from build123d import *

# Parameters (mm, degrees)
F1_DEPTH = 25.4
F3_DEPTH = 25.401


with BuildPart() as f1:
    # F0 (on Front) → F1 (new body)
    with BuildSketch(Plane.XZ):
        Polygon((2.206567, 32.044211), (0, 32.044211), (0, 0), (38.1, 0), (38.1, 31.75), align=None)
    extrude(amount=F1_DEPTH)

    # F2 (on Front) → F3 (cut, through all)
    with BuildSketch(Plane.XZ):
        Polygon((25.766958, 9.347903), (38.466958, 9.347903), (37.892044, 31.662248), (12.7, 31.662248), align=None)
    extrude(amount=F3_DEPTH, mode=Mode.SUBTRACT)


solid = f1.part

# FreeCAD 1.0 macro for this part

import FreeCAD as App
import Part
import Sketcher
Q = App.Units.Quantity


def add_polygon(sketch, points):
    """Adds a closed chain of lines whose ends are joined by coincident constraints."""
    first, n = sketch.GeometryCount, len(points)
    for a, b in zip(points, points[1:] + points[:1]):
        sketch.addGeometry(Part.LineSegment(App.Vector(*a, 0), App.Vector(*b, 0)), False)
    for i in range(n):
        sketch.addConstraint(Sketcher.Constraint("Coincident", first + i, 2, first + (i + 1) % n, 1))

doc = App.newDocument("Part")
params = doc.addObject("Spreadsheet::Sheet", "Params")
for row, (alias, value) in enumerate([
    ("sketch1_width", "1.5 in"),
    ("sketch1_height", "1.25 in"),
    ("pad1_length", "1 in"),
    ("sketch2_width", "0.5 in"),
], start=1):
    params.set(f"A{row}", alias)
    params.set(f"B{row}", "=" + value)
    params.setAlias(f"B{row}", alias)

body = doc.addObject("PartDesign::Body", "Body")

# Sketch on XZ plane
sketch1 = body.newObject("Sketcher::SketchObject", "Sketch")
sketch1.AttachmentSupport = (doc.getObject("XZ_Plane"), [""])
sketch1.MapMode = "FlatFace"
add_polygon(sketch1, [(2.2, 32), (0, 32), (0, 0), (38.1, 0), (38.1, 31.8)])  # lines 0-4
sketch1.addConstraint(Sketcher.Constraint("Horizontal", 0))
sketch1.addConstraint(Sketcher.Constraint("Vertical", 1))
sketch1.addConstraint(Sketcher.Constraint("Horizontal", 2))
sketch1.addConstraint(Sketcher.Constraint("Vertical", 3))
sketch1.addConstraint(Sketcher.Constraint("Coincident", 1, 2, -1, 1))
sketch1.addConstraint(Sketcher.Constraint("DistanceX", 2, 1, 2, 2, Q("1.5 in")))
sketch1.addConstraint(Sketcher.Constraint("DistanceY", 3, 1, 3, 2, Q("1.25 in")))
sketch1.addConstraint(Sketcher.Constraint("DistanceY", 1, 2, 1, 1, Q("32.044211 mm")))
sketch1.addConstraint(Sketcher.Constraint("Distance", 4, Q("35.894639 mm")))
sketch1.setExpression("Constraints[10]", "Params.sketch1_width")
sketch1.setExpression("Constraints[11]", "Params.sketch1_height")
pad1 = body.newObject("PartDesign::Pad", "Pad")
pad1.Profile = sketch1
pad1.setExpression("Length", "Params.pad1_length")

# Sketch on XZ plane
sketch2 = body.newObject("Sketcher::SketchObject", "Sketch001")
sketch2.AttachmentSupport = (doc.getObject("XZ_Plane"), [""])
sketch2.MapMode = "FlatFace"
add_polygon(sketch2, [(26, 9), (38, 9), (38, 32), (13, 32)])  # lines 0-3
sketch2.addConstraint(Sketcher.Constraint("Horizontal", 0))
sketch2.addConstraint(Sketcher.Constraint("Horizontal", 2))
sketch2.addConstraint(Sketcher.Constraint("DistanceX", 0, 1, 0, 2, Q("0.5 in")))
sketch2.addConstraint(Sketcher.Constraint("DistanceX", -1, 1, 2, 2, Q("0.5 in")))
sketch2.addConstraint(Sketcher.Constraint("Distance", 1, Q("22.32175 mm")))
sketch2.addConstraint(Sketcher.Constraint("Distance", 3, Q("25.858758 mm")))
sketch2.addConstraint(Sketcher.Constraint("DistanceX", 2, 2, 2, 1, Q("25.192044 mm")))
sketch2.addConstraint(Sketcher.Constraint("DistanceY", -1, 1, 1, 2, Q("31.662248 mm")))
sketch2.setExpression("Constraints[6]", "Params.sketch2_width")
pocket1 = body.newObject("PartDesign::Pocket", "Pocket")
pocket1.Profile = sketch2
pocket1.Type = "ThroughAll"
pocket1.Reversed = True

doc.recompute()
